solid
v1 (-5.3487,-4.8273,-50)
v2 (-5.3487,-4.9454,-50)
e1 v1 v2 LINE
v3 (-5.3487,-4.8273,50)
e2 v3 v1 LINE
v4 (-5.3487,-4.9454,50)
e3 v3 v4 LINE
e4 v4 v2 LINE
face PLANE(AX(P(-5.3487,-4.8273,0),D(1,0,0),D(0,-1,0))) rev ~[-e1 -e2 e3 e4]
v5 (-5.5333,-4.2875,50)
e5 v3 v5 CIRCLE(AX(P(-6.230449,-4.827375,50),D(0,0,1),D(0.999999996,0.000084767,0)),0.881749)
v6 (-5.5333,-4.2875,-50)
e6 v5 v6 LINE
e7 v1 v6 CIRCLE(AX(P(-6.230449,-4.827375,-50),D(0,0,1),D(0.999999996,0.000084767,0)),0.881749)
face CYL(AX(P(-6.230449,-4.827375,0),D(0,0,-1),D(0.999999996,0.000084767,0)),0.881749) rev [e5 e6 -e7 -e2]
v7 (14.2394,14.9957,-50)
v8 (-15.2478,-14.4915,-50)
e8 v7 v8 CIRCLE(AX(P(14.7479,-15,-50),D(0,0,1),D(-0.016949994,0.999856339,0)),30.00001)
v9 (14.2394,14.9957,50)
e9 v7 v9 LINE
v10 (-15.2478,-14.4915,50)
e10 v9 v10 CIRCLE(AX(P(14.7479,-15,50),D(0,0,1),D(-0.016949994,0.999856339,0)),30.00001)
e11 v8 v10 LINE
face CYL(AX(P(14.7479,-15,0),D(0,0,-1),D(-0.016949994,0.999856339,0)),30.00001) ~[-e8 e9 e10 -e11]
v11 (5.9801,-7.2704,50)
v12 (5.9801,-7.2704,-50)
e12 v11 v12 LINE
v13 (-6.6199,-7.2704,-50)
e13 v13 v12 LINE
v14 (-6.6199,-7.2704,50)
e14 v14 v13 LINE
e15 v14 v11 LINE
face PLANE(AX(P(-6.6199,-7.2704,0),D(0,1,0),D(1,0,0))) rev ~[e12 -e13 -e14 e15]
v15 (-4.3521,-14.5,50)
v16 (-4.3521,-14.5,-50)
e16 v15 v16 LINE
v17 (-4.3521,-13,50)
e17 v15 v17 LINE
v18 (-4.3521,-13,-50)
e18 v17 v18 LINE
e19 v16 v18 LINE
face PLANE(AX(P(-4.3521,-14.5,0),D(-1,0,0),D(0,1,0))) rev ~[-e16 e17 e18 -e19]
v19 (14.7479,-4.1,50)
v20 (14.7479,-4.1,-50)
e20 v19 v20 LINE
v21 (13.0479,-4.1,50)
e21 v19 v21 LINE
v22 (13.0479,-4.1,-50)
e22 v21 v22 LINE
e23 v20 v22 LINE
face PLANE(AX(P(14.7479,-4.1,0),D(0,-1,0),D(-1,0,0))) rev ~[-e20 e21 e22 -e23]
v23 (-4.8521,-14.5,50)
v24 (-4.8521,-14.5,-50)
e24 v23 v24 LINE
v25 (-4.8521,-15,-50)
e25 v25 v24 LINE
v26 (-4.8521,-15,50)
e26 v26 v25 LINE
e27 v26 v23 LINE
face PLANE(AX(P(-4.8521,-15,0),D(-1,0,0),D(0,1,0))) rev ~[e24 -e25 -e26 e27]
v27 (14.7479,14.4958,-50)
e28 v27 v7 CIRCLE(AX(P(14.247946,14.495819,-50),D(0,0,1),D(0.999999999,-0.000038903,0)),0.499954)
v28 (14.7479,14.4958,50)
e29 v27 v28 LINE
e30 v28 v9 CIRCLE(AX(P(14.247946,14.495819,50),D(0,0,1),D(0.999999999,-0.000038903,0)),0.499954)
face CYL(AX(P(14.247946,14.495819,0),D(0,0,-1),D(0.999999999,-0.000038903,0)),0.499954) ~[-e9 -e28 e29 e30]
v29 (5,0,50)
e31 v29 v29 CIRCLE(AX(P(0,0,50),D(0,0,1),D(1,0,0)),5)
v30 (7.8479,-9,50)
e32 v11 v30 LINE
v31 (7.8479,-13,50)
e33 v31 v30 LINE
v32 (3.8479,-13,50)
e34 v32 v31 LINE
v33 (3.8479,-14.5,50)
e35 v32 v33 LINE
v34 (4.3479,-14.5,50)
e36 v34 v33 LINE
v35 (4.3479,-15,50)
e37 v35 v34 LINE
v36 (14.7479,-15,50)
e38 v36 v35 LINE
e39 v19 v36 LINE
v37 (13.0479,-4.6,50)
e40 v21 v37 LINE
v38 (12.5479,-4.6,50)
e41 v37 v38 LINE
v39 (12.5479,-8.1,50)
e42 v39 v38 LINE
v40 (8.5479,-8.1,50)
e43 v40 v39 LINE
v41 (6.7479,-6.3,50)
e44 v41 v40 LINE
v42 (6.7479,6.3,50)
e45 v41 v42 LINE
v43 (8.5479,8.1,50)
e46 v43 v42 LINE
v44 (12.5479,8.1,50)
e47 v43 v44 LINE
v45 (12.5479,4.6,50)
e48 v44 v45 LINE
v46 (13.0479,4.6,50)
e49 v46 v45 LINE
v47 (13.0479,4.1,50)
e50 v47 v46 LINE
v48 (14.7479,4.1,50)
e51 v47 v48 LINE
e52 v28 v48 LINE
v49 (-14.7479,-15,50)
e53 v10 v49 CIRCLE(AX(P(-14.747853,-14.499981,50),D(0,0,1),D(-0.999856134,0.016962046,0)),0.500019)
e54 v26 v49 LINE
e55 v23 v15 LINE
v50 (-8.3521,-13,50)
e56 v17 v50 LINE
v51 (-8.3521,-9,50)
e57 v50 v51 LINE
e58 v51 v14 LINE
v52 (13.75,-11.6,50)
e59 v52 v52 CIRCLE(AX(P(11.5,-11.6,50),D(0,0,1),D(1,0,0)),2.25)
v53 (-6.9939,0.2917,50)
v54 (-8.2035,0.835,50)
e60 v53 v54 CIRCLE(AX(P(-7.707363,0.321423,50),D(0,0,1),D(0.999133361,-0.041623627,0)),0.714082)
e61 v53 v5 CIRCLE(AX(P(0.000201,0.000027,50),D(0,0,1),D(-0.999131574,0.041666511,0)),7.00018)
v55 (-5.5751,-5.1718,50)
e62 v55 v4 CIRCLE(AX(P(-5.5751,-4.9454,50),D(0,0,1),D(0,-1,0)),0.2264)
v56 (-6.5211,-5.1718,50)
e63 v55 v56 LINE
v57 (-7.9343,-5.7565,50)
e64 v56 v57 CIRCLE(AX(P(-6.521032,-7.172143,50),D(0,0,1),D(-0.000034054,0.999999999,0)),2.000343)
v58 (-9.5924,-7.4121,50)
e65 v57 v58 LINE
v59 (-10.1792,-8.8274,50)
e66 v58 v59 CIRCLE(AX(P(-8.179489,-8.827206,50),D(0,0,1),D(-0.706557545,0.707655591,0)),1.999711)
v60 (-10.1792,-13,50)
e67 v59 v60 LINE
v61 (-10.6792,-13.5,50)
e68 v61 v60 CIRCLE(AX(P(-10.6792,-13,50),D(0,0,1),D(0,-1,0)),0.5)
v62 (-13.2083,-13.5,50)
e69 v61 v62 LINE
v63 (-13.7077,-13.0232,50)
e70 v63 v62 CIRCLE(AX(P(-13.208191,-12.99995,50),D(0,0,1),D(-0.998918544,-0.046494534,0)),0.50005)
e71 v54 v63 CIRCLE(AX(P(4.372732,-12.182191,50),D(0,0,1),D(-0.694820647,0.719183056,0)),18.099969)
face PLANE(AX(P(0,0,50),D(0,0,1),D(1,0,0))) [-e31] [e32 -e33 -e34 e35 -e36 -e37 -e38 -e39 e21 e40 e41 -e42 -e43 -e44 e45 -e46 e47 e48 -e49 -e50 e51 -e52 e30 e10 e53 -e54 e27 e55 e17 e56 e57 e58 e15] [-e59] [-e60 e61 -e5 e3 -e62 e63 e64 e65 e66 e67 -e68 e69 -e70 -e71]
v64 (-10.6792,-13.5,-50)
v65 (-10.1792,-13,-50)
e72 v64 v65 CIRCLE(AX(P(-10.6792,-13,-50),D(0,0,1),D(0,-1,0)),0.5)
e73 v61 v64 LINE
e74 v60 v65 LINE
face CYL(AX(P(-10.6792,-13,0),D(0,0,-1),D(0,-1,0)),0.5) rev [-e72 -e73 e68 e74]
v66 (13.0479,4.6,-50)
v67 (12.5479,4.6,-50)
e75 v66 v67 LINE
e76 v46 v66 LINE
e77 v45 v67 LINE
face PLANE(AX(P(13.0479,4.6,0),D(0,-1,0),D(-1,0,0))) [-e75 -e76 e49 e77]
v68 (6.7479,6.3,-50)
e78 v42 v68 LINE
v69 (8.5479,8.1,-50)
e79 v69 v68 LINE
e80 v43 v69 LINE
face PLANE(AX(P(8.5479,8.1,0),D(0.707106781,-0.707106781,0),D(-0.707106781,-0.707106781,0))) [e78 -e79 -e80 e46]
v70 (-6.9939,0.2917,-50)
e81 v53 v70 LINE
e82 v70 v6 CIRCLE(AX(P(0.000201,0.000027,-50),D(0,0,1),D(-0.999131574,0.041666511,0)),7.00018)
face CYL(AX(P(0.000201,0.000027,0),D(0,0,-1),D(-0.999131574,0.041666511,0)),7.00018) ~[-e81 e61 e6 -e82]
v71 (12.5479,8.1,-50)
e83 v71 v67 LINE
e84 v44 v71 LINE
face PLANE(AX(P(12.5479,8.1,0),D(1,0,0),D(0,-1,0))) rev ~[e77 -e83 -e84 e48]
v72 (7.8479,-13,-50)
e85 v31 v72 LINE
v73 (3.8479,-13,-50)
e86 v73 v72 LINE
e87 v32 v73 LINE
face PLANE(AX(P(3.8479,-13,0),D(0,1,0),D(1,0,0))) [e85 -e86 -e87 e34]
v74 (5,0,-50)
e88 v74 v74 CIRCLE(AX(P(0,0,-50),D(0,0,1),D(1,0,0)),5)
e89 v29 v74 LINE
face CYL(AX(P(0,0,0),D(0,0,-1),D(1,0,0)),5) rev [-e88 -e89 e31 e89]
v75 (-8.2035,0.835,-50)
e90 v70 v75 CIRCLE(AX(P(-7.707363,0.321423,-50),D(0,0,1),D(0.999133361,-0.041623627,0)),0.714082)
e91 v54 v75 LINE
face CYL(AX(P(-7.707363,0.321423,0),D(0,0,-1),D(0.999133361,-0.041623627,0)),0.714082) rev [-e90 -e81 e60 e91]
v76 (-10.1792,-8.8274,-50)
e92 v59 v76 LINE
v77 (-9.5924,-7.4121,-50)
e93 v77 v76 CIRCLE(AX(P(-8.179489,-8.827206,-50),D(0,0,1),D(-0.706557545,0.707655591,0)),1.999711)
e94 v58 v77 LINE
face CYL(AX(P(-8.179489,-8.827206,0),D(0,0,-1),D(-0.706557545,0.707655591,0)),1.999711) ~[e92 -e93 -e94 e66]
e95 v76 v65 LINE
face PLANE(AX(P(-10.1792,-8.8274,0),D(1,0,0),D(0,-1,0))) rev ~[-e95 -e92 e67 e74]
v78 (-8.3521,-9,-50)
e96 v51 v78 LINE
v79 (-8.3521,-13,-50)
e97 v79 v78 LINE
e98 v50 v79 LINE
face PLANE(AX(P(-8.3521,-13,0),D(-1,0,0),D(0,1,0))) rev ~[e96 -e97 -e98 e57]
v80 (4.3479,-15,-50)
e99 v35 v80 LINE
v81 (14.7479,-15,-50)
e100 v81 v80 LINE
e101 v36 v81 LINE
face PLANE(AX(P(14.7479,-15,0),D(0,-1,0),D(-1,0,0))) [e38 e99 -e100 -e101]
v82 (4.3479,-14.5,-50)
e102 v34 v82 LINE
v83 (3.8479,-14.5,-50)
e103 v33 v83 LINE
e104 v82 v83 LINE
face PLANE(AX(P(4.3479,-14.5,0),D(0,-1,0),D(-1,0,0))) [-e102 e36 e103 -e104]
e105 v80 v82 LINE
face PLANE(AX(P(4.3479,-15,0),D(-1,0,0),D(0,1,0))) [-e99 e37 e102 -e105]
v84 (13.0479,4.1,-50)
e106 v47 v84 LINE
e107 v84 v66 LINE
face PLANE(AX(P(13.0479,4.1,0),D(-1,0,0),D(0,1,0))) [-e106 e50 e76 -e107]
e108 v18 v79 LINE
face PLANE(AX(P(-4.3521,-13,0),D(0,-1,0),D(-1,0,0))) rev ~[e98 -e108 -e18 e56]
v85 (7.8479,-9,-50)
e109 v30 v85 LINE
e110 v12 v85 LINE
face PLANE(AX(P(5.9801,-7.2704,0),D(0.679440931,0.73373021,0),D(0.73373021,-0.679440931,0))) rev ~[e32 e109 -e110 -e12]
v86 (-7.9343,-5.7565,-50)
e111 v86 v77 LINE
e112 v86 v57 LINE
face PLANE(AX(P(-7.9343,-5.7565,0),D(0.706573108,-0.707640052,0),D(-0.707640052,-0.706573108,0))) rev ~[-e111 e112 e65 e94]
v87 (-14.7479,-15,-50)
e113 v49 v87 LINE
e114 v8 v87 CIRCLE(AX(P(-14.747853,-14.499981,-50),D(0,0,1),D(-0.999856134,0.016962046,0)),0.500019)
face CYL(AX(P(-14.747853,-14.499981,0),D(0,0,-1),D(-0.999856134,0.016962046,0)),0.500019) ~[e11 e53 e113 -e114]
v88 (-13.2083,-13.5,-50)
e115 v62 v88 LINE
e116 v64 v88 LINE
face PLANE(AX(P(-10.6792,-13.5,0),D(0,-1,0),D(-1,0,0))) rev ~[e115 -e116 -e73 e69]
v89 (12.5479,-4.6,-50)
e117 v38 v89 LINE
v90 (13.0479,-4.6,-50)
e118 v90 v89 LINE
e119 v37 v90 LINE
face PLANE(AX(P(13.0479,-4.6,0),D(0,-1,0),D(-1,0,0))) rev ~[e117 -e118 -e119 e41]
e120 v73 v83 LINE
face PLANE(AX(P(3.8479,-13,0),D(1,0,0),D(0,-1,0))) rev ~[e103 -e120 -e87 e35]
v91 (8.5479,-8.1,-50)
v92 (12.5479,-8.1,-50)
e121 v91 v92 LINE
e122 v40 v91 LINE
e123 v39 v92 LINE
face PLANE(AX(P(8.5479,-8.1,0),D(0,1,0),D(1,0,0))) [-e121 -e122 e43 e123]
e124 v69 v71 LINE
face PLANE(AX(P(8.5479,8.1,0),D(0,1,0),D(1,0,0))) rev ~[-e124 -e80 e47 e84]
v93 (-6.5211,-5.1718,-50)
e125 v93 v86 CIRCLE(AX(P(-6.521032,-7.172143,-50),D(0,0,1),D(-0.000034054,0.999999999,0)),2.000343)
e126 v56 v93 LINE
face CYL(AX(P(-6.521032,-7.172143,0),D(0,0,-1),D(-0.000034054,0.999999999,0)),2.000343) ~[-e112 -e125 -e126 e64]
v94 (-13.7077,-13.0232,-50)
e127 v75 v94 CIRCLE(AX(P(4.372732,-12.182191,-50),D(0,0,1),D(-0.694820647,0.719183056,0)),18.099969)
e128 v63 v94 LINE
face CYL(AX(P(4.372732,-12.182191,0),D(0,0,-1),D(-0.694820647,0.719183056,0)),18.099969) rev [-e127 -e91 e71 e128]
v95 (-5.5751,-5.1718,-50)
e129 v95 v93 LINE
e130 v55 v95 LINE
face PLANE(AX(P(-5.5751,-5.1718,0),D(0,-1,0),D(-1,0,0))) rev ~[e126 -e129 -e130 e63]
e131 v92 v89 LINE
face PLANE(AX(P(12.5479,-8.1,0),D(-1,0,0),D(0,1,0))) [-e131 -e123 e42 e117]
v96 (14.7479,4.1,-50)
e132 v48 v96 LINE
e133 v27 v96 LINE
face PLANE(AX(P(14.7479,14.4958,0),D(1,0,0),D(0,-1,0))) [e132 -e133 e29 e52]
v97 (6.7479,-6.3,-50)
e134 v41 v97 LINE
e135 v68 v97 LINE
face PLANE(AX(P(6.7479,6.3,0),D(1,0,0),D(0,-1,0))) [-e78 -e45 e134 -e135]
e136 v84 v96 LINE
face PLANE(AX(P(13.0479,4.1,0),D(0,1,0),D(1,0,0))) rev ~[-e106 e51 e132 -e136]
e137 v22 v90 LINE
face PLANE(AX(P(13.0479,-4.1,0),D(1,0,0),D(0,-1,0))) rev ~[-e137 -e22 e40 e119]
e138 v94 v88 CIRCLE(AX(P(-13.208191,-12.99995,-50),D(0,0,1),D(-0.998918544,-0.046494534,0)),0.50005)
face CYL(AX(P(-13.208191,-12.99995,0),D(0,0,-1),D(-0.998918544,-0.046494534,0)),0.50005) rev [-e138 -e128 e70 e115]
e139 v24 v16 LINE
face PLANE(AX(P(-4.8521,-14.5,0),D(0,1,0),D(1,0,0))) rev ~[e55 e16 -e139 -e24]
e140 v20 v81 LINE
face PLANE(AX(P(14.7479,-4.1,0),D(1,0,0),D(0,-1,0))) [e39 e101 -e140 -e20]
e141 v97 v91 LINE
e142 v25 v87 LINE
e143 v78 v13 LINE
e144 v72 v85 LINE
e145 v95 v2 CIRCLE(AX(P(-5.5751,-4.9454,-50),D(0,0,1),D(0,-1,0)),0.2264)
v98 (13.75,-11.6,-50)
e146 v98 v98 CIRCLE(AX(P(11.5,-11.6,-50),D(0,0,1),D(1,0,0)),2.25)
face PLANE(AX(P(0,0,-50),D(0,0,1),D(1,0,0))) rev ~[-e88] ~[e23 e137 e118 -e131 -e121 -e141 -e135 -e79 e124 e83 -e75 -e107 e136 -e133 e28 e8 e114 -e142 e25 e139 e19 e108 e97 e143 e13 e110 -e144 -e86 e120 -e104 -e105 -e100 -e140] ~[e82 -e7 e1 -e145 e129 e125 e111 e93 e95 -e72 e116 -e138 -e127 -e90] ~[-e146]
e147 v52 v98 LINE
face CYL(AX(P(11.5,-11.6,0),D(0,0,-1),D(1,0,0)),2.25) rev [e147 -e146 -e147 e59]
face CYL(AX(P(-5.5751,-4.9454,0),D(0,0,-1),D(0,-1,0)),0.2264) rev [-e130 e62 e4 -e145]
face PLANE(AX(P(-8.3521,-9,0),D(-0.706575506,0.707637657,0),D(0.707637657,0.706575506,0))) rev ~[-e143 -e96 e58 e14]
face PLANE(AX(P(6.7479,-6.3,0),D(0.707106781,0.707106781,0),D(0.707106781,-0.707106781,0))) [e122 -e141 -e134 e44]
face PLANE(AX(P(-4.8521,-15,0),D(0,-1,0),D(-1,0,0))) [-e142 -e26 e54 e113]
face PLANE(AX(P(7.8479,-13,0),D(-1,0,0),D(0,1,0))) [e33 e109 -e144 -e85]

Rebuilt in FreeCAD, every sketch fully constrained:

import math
import FreeCAD as App
import Part
import Sketcher
from FreeCAD import Vector
Q = App.Units.Quantity

doc = App.newDocument("Part")
body = doc.addObject("PartDesign::Body", "Body")

sketch1 = body.newObject("Sketcher::SketchObject", "Sketch")
sketch1.AttachmentSupport = (doc.getObject("XY_Plane"), [""])
sketch1.MapMode = "FlatFace"
sketch1.addGeometry([
    Part.LineSegment(Vector(14.7479, 4.1, 0), Vector(14.7479, 14.4958, 0)),
    Part.ArcOfCircle(Part.Circle(Vector(14.2479, 14.4958, 0), Vector(0, 0, 1), 0.5), math.radians(0), math.radians(90.974129)),
    Part.ArcOfCircle(Part.Circle(Vector(14.7479, -15, 0), Vector(0, 0, 1), 30.00001), math.radians(90.97121), math.radians(179.02879)),
    Part.ArcOfCircle(Part.Circle(Vector(-14.7479, -14.5, 0), Vector(0, 0, 1), 0.499972), math.radians(179.025871), math.radians(270)),
    Part.LineSegment(Vector(-14.7479, -15, 0), Vector(-4.8521, -15, 0)),
    Part.LineSegment(Vector(-4.8521, -15, 0), Vector(-4.8521, -14.5, 0)),
    Part.LineSegment(Vector(-4.8521, -14.5, 0), Vector(-4.3521, -14.5, 0)),
    Part.LineSegment(Vector(-4.3521, -14.5, 0), Vector(-4.3521, -13, 0)),
    Part.LineSegment(Vector(-4.3521, -13, 0), Vector(-8.3521, -13, 0)),
    Part.LineSegment(Vector(-8.3521, -13, 0), Vector(-8.3521, -9, 0)),
    Part.LineSegment(Vector(-8.3521, -9, 0), Vector(-6.6199, -7.2704, 0)),
    Part.LineSegment(Vector(-6.6199, -7.2704, 0), Vector(5.9801, -7.2704, 0)),
    Part.LineSegment(Vector(5.9801, -7.2704, 0), Vector(7.8479, -9, 0)),
    Part.LineSegment(Vector(7.8479, -9, 0), Vector(7.8479, -13, 0)),
    Part.LineSegment(Vector(7.8479, -13, 0), Vector(3.8479, -13, 0)),
    Part.LineSegment(Vector(3.8479, -13, 0), Vector(3.8479, -14.5, 0)),
    Part.LineSegment(Vector(3.8479, -14.5, 0), Vector(4.3479, -14.5, 0)),
    Part.LineSegment(Vector(4.3479, -14.5, 0), Vector(4.3479, -15, 0)),
    Part.LineSegment(Vector(4.3479, -15, 0), Vector(14.7479, -15, 0)),
    Part.LineSegment(Vector(14.7479, -15, 0), Vector(14.7479, -4.1, 0)),
    Part.LineSegment(Vector(14.7479, -4.1, 0), Vector(13.0479, -4.1, 0)),
    Part.LineSegment(Vector(13.0479, -4.1, 0), Vector(13.0479, -4.6, 0)),
    Part.LineSegment(Vector(13.0479, -4.6, 0), Vector(12.5479, -4.6, 0)),
    Part.LineSegment(Vector(12.5479, -4.6, 0), Vector(12.5479, -8.1, 0)),
    Part.LineSegment(Vector(12.5479, -8.1, 0), Vector(8.5479, -8.1, 0)),
    Part.LineSegment(Vector(8.5479, -8.1, 0), Vector(6.7479, -6.3, 0)),
    Part.LineSegment(Vector(6.7479, -6.3, 0), Vector(6.7479, 6.3, 0)),
    Part.LineSegment(Vector(6.7479, 6.3, 0), Vector(8.5479, 8.1, 0)),
    Part.LineSegment(Vector(8.5479, 8.1, 0), Vector(12.5479, 8.1, 0)),
    Part.LineSegment(Vector(12.5479, 8.1, 0), Vector(12.5479, 4.6, 0)),
    Part.LineSegment(Vector(12.5479, 4.6, 0), Vector(13.0479, 4.6, 0)),
    Part.LineSegment(Vector(13.0479, 4.6, 0), Vector(13.0479, 4.1, 0)),
    Part.LineSegment(Vector(13.0479, 4.1, 0), Vector(14.7479, 4.1, 0)),
    Part.ArcOfCircle(Part.Circle(Vector(-6.5211, -7.1718, 0), Vector(0, 0, 1), 2), math.radians(90), math.radians(134.957461)),
    Part.LineSegment(Vector(-7.9343, -5.7565, 0), Vector(-9.5924, -7.4121, 0)),
    Part.ArcOfCircle(Part.Circle(Vector(-8.1792, -8.8274, 0), Vector(0, 0, 1), 2.000052), math.radians(134.957461), math.radians(180)),
    Part.LineSegment(Vector(-10.1792, -8.8274, 0), Vector(-10.1792, -13, 0)),
    Part.ArcOfCircle(Part.Circle(Vector(-10.6792, -13, 0), Vector(0, 0, 1), 0.5), math.radians(-90), math.radians(0)),
    Part.LineSegment(Vector(-10.6792, -13.5, 0), Vector(-13.2083, -13.5, 0)),
    Part.ArcOfCircle(Part.Circle(Vector(-13.2083, -13, 0), Vector(0, 0, 1), 0.499939), math.radians(-177.340194), math.radians(-90)),
    Part.ArcOfCircle(Part.Circle(Vector(4.3732, -12.1825, 0), Vector(0, 0, 1), 18.100516), math.radians(134.013312), math.radians(182.66214)),
    Part.ArcOfCircle(Part.Circle(Vector(-7.7074, 0.3214, 0), Vector(0, 0, 1), 0.714118), math.radians(-2.383606), math.radians(134.007056)),
    Part.ArcOfCircle(Part.Circle(Vector(0, 0, 0), Vector(0, 0, 1), 7.000007), math.radians(177.611705), math.radians(217.77046)),
    Part.ArcOfCircle(Part.Circle(Vector(-6.23, -4.8273, 0), Vector(0, 0, 1), 0.8813), math.radians(0), math.radians(37.768362)),
    Part.LineSegment(Vector(-5.3487, -4.8273, 0), Vector(-5.3487, -4.9454, 0)),
    Part.ArcOfCircle(Part.Circle(Vector(-5.5751, -4.9454, 0), Vector(0, 0, 1), 0.2264), math.radians(-90), math.radians(0)),
    Part.LineSegment(Vector(-5.5751, -5.1718, 0), Vector(-6.5211, -5.1718, 0)),
    Part.Circle(Vector(11.5, -11.6, 0), Vector(0, 0, 1), 2.25),
    Part.Circle(Vector(0, 0, 0), Vector(0, 0, 1), 5),
], False)
sketch1.addConstraint([
    Sketcher.Constraint("Tangent", 0, 2, 1, 1),
    Sketcher.Constraint("Tangent", 1, 2, 2, 1),
    Sketcher.Constraint("Tangent", 2, 2, 3, 1),
    Sketcher.Constraint("Tangent", 3, 2, 4, 1),
    Sketcher.Constraint("Coincident", 4, 2, 5, 1),
    Sketcher.Constraint("Coincident", 5, 2, 6, 1),
    Sketcher.Constraint("Coincident", 6, 2, 7, 1),
    Sketcher.Constraint("Coincident", 7, 2, 8, 1),
    Sketcher.Constraint("Coincident", 8, 2, 9, 1),
    Sketcher.Constraint("Coincident", 9, 2, 10, 1),
    Sketcher.Constraint("Coincident", 10, 2, 11, 1),
    Sketcher.Constraint("Coincident", 11, 2, 12, 1),
    Sketcher.Constraint("Coincident", 12, 2, 13, 1),
    Sketcher.Constraint("Coincident", 13, 2, 14, 1),
    Sketcher.Constraint("Coincident", 14, 2, 15, 1),
    Sketcher.Constraint("Coincident", 15, 2, 16, 1),
    Sketcher.Constraint("Coincident", 16, 2, 17, 1),
    Sketcher.Constraint("Coincident", 17, 2, 18, 1),
    Sketcher.Constraint("Coincident", 18, 2, 19, 1),
    Sketcher.Constraint("Coincident", 19, 2, 20, 1),
    Sketcher.Constraint("Coincident", 20, 2, 21, 1),
    Sketcher.Constraint("Coincident", 21, 2, 22, 1),
    Sketcher.Constraint("Coincident", 22, 2, 23, 1),
    Sketcher.Constraint("Coincident", 23, 2, 24, 1),
    Sketcher.Constraint("Coincident", 24, 2, 25, 1),
    Sketcher.Constraint("Coincident", 25, 2, 26, 1),
    Sketcher.Constraint("Coincident", 26, 2, 27, 1),
    Sketcher.Constraint("Coincident", 27, 2, 28, 1),
    Sketcher.Constraint("Coincident", 28, 2, 29, 1),
    Sketcher.Constraint("Coincident", 29, 2, 30, 1),
    Sketcher.Constraint("Coincident", 30, 2, 31, 1),
    Sketcher.Constraint("Coincident", 31, 2, 32, 1),
    Sketcher.Constraint("Coincident", 32, 2, 0, 1),
    Sketcher.Constraint("Tangent", 33, 2, 34, 1),
    Sketcher.Constraint("Tangent", 34, 2, 35, 1),
    Sketcher.Constraint("Tangent", 35, 2, 36, 1),
    Sketcher.Constraint("Tangent", 36, 2, 37, 2),
    Sketcher.Constraint("Tangent", 37, 1, 38, 1),
    Sketcher.Constraint("Tangent", 38, 2, 39, 2),
    Sketcher.Constraint("Tangent", 39, 1, 40, 2),
    Sketcher.Constraint("Tangent", 40, 1, 41, 2),
    Sketcher.Constraint("Tangent", 41, 1, 42, 1),
    Sketcher.Constraint("Tangent", 42, 2, 43, 2),
    Sketcher.Constraint("Tangent", 43, 1, 44, 1),
    Sketcher.Constraint("Tangent", 44, 2, 45, 2),
    Sketcher.Constraint("Tangent", 45, 1, 46, 1),
    Sketcher.Constraint("Tangent", 46, 2, 33, 1),
    Sketcher.Constraint("Vertical", 0),
    Sketcher.Constraint("Horizontal", 4),
    Sketcher.Constraint("Vertical", 5),
    Sketcher.Constraint("Horizontal", 6),
    Sketcher.Constraint("Vertical", 7),
    Sketcher.Constraint("Horizontal", 8),
    Sketcher.Constraint("Vertical", 9),
    Sketcher.Constraint("Horizontal", 11),
    Sketcher.Constraint("Vertical", 13),
    Sketcher.Constraint("Horizontal", 14),
    Sketcher.Constraint("Vertical", 15),
    Sketcher.Constraint("Horizontal", 16),
    Sketcher.Constraint("Vertical", 17),
    Sketcher.Constraint("Horizontal", 18),
    Sketcher.Constraint("Vertical", 19),
    Sketcher.Constraint("Horizontal", 20),
    Sketcher.Constraint("Vertical", 21),
    Sketcher.Constraint("Horizontal", 22),
    Sketcher.Constraint("Vertical", 23),
    Sketcher.Constraint("Horizontal", 24),
    Sketcher.Constraint("Vertical", 26),
    Sketcher.Constraint("Horizontal", 28),
    Sketcher.Constraint("Vertical", 29),
    Sketcher.Constraint("Horizontal", 30),
    Sketcher.Constraint("Vertical", 31),
    Sketcher.Constraint("Horizontal", 32),
    Sketcher.Constraint("Vertical", 36),
    Sketcher.Constraint("Horizontal", 38),
    Sketcher.Constraint("Vertical", 44),
    Sketcher.Constraint("Horizontal", 46),
    Sketcher.Constraint("Coincident", 42, 3, -1, 1),
    Sketcher.Constraint("Coincident", 48, 3, -1, 1),
    Sketcher.Constraint("Coincident", 18, 2, 2, 3),
    Sketcher.Constraint("Equal", 1, 3),
    Sketcher.Constraint("Equal", 33, 35),
    Sketcher.Constraint("Equal", 3, 37),
    Sketcher.Constraint("Equal", 37, 39),
    Sketcher.Constraint("Symmetric", 3, 2, 18, 2, -2),
    Sketcher.Constraint("Symmetric", 24, 2, 27, 2, -1),
    Sketcher.Constraint("Symmetric", 22, 2, 29, 2, -1),
    Sketcher.Constraint("Symmetric", 20, 2, 31, 2, -1),
    Sketcher.Constraint("Perpendicular", 25, 27),
    Sketcher.Constraint("Parallel", 10, 34),
    Sketcher.Constraint("Horizontal", 3, 3, 5, 2),
    Sketcher.Constraint("Horizontal", 39, 3, 7, 2),
    Sketcher.Constraint("Horizontal", 9, 2, 12, 2),
    Sketcher.Constraint("Horizontal", 8, 2, 13, 2),
    Sketcher.Constraint("Horizontal", 6, 2, 15, 2),
    Sketcher.Constraint("Vertical", 2, 3, 0, 2),
    Sketcher.Constraint("Equal", 8, 14),
    Sketcher.Constraint("Equal", 6, 16),
    Sketcher.Constraint("Equal", 16, 22),
    Sketcher.Constraint("Equal", 14, 24),
    Sketcher.Constraint("Equal", 30, 5),
    Sketcher.Constraint("Equal", 28, 9),
    Sketcher.Constraint("Equal", 17, 21),
    Sketcher.Constraint("Equal", 11, 26),
    Sketcher.Constraint("Equal", 12, 25),
    Sketcher.Constraint("Equal", 25, 27),
    Sketcher.Constraint("Diameter", 48, 10.0),
    Sketcher.Constraint("Radius", 2, 30.0),
    Sketcher.Constraint("Radius", 33, 2.0),
    Sketcher.Constraint("Diameter", 47, 4.5),
    Sketcher.Constraint("Radius", 1, 0.5),
    Sketcher.Constraint("DistanceX", 8, 2, 8, 1, 4.0),
    Sketcher.Constraint("DistanceX", 11, 1, 11, 2, 12.6),
    Sketcher.Constraint("DistanceY", 7, 1, 7, 2, 1.5),
    Sketcher.Constraint("DistanceY", 19, 1, 19, 2, 10.9),
    Sketcher.Constraint("DistanceY", 23, 2, 23, 1, 3.5),
    Sketcher.Constraint("Radius", 41, 0.714),
    Sketcher.Constraint("Radius", 42, 7.0),
    Sketcher.Constraint("DistanceX", -1, 1, 47, 3, 11.5),
    Sketcher.Constraint("DistanceY", 19, 2, -1, 1, 4.1),
    Sketcher.Constraint("Radius", 40, 18.1005),
    Sketcher.Constraint("Radius", 43, 0.8813),
    Sketcher.Constraint("Radius", 45, 0.2264),
    Sketcher.Constraint("DistanceX", 18, 1, 18, 2, 10.4),
    Sketcher.Constraint("DistanceX", 20, 2, 20, 1, 1.7),
    Sketcher.Constraint("Angle", 12, Q("-42.8 deg")),
    Sketcher.Constraint("DistanceY", 47, 3, -1, 1, 11.6),
    Sketcher.Constraint("DistanceX", 38, 2, 38, 1, 2.529),
    Sketcher.Constraint("DistanceX", 46, 2, 46, 1, 0.946),
    Sketcher.Constraint("DistanceY", 44, 2, 44, 1, 0.118),
    Sketcher.Constraint("DistanceX", 43, 3, -1, 1, 6.23),
    Sketcher.Constraint("DistanceX", 4, 1, 4, 2, 9.8958),
    Sketcher.Constraint("DistanceY", 36, 2, 36, 1, 4.1726),
    Sketcher.Constraint("DistanceY", -1, 1, 40, 1, 0.835),
])
pad1 = body.newObject("PartDesign::Pad", "Pad")
pad1.Profile = sketch1
pad1.Length = 100
pad1.Midplane = True

doc.recompute()
